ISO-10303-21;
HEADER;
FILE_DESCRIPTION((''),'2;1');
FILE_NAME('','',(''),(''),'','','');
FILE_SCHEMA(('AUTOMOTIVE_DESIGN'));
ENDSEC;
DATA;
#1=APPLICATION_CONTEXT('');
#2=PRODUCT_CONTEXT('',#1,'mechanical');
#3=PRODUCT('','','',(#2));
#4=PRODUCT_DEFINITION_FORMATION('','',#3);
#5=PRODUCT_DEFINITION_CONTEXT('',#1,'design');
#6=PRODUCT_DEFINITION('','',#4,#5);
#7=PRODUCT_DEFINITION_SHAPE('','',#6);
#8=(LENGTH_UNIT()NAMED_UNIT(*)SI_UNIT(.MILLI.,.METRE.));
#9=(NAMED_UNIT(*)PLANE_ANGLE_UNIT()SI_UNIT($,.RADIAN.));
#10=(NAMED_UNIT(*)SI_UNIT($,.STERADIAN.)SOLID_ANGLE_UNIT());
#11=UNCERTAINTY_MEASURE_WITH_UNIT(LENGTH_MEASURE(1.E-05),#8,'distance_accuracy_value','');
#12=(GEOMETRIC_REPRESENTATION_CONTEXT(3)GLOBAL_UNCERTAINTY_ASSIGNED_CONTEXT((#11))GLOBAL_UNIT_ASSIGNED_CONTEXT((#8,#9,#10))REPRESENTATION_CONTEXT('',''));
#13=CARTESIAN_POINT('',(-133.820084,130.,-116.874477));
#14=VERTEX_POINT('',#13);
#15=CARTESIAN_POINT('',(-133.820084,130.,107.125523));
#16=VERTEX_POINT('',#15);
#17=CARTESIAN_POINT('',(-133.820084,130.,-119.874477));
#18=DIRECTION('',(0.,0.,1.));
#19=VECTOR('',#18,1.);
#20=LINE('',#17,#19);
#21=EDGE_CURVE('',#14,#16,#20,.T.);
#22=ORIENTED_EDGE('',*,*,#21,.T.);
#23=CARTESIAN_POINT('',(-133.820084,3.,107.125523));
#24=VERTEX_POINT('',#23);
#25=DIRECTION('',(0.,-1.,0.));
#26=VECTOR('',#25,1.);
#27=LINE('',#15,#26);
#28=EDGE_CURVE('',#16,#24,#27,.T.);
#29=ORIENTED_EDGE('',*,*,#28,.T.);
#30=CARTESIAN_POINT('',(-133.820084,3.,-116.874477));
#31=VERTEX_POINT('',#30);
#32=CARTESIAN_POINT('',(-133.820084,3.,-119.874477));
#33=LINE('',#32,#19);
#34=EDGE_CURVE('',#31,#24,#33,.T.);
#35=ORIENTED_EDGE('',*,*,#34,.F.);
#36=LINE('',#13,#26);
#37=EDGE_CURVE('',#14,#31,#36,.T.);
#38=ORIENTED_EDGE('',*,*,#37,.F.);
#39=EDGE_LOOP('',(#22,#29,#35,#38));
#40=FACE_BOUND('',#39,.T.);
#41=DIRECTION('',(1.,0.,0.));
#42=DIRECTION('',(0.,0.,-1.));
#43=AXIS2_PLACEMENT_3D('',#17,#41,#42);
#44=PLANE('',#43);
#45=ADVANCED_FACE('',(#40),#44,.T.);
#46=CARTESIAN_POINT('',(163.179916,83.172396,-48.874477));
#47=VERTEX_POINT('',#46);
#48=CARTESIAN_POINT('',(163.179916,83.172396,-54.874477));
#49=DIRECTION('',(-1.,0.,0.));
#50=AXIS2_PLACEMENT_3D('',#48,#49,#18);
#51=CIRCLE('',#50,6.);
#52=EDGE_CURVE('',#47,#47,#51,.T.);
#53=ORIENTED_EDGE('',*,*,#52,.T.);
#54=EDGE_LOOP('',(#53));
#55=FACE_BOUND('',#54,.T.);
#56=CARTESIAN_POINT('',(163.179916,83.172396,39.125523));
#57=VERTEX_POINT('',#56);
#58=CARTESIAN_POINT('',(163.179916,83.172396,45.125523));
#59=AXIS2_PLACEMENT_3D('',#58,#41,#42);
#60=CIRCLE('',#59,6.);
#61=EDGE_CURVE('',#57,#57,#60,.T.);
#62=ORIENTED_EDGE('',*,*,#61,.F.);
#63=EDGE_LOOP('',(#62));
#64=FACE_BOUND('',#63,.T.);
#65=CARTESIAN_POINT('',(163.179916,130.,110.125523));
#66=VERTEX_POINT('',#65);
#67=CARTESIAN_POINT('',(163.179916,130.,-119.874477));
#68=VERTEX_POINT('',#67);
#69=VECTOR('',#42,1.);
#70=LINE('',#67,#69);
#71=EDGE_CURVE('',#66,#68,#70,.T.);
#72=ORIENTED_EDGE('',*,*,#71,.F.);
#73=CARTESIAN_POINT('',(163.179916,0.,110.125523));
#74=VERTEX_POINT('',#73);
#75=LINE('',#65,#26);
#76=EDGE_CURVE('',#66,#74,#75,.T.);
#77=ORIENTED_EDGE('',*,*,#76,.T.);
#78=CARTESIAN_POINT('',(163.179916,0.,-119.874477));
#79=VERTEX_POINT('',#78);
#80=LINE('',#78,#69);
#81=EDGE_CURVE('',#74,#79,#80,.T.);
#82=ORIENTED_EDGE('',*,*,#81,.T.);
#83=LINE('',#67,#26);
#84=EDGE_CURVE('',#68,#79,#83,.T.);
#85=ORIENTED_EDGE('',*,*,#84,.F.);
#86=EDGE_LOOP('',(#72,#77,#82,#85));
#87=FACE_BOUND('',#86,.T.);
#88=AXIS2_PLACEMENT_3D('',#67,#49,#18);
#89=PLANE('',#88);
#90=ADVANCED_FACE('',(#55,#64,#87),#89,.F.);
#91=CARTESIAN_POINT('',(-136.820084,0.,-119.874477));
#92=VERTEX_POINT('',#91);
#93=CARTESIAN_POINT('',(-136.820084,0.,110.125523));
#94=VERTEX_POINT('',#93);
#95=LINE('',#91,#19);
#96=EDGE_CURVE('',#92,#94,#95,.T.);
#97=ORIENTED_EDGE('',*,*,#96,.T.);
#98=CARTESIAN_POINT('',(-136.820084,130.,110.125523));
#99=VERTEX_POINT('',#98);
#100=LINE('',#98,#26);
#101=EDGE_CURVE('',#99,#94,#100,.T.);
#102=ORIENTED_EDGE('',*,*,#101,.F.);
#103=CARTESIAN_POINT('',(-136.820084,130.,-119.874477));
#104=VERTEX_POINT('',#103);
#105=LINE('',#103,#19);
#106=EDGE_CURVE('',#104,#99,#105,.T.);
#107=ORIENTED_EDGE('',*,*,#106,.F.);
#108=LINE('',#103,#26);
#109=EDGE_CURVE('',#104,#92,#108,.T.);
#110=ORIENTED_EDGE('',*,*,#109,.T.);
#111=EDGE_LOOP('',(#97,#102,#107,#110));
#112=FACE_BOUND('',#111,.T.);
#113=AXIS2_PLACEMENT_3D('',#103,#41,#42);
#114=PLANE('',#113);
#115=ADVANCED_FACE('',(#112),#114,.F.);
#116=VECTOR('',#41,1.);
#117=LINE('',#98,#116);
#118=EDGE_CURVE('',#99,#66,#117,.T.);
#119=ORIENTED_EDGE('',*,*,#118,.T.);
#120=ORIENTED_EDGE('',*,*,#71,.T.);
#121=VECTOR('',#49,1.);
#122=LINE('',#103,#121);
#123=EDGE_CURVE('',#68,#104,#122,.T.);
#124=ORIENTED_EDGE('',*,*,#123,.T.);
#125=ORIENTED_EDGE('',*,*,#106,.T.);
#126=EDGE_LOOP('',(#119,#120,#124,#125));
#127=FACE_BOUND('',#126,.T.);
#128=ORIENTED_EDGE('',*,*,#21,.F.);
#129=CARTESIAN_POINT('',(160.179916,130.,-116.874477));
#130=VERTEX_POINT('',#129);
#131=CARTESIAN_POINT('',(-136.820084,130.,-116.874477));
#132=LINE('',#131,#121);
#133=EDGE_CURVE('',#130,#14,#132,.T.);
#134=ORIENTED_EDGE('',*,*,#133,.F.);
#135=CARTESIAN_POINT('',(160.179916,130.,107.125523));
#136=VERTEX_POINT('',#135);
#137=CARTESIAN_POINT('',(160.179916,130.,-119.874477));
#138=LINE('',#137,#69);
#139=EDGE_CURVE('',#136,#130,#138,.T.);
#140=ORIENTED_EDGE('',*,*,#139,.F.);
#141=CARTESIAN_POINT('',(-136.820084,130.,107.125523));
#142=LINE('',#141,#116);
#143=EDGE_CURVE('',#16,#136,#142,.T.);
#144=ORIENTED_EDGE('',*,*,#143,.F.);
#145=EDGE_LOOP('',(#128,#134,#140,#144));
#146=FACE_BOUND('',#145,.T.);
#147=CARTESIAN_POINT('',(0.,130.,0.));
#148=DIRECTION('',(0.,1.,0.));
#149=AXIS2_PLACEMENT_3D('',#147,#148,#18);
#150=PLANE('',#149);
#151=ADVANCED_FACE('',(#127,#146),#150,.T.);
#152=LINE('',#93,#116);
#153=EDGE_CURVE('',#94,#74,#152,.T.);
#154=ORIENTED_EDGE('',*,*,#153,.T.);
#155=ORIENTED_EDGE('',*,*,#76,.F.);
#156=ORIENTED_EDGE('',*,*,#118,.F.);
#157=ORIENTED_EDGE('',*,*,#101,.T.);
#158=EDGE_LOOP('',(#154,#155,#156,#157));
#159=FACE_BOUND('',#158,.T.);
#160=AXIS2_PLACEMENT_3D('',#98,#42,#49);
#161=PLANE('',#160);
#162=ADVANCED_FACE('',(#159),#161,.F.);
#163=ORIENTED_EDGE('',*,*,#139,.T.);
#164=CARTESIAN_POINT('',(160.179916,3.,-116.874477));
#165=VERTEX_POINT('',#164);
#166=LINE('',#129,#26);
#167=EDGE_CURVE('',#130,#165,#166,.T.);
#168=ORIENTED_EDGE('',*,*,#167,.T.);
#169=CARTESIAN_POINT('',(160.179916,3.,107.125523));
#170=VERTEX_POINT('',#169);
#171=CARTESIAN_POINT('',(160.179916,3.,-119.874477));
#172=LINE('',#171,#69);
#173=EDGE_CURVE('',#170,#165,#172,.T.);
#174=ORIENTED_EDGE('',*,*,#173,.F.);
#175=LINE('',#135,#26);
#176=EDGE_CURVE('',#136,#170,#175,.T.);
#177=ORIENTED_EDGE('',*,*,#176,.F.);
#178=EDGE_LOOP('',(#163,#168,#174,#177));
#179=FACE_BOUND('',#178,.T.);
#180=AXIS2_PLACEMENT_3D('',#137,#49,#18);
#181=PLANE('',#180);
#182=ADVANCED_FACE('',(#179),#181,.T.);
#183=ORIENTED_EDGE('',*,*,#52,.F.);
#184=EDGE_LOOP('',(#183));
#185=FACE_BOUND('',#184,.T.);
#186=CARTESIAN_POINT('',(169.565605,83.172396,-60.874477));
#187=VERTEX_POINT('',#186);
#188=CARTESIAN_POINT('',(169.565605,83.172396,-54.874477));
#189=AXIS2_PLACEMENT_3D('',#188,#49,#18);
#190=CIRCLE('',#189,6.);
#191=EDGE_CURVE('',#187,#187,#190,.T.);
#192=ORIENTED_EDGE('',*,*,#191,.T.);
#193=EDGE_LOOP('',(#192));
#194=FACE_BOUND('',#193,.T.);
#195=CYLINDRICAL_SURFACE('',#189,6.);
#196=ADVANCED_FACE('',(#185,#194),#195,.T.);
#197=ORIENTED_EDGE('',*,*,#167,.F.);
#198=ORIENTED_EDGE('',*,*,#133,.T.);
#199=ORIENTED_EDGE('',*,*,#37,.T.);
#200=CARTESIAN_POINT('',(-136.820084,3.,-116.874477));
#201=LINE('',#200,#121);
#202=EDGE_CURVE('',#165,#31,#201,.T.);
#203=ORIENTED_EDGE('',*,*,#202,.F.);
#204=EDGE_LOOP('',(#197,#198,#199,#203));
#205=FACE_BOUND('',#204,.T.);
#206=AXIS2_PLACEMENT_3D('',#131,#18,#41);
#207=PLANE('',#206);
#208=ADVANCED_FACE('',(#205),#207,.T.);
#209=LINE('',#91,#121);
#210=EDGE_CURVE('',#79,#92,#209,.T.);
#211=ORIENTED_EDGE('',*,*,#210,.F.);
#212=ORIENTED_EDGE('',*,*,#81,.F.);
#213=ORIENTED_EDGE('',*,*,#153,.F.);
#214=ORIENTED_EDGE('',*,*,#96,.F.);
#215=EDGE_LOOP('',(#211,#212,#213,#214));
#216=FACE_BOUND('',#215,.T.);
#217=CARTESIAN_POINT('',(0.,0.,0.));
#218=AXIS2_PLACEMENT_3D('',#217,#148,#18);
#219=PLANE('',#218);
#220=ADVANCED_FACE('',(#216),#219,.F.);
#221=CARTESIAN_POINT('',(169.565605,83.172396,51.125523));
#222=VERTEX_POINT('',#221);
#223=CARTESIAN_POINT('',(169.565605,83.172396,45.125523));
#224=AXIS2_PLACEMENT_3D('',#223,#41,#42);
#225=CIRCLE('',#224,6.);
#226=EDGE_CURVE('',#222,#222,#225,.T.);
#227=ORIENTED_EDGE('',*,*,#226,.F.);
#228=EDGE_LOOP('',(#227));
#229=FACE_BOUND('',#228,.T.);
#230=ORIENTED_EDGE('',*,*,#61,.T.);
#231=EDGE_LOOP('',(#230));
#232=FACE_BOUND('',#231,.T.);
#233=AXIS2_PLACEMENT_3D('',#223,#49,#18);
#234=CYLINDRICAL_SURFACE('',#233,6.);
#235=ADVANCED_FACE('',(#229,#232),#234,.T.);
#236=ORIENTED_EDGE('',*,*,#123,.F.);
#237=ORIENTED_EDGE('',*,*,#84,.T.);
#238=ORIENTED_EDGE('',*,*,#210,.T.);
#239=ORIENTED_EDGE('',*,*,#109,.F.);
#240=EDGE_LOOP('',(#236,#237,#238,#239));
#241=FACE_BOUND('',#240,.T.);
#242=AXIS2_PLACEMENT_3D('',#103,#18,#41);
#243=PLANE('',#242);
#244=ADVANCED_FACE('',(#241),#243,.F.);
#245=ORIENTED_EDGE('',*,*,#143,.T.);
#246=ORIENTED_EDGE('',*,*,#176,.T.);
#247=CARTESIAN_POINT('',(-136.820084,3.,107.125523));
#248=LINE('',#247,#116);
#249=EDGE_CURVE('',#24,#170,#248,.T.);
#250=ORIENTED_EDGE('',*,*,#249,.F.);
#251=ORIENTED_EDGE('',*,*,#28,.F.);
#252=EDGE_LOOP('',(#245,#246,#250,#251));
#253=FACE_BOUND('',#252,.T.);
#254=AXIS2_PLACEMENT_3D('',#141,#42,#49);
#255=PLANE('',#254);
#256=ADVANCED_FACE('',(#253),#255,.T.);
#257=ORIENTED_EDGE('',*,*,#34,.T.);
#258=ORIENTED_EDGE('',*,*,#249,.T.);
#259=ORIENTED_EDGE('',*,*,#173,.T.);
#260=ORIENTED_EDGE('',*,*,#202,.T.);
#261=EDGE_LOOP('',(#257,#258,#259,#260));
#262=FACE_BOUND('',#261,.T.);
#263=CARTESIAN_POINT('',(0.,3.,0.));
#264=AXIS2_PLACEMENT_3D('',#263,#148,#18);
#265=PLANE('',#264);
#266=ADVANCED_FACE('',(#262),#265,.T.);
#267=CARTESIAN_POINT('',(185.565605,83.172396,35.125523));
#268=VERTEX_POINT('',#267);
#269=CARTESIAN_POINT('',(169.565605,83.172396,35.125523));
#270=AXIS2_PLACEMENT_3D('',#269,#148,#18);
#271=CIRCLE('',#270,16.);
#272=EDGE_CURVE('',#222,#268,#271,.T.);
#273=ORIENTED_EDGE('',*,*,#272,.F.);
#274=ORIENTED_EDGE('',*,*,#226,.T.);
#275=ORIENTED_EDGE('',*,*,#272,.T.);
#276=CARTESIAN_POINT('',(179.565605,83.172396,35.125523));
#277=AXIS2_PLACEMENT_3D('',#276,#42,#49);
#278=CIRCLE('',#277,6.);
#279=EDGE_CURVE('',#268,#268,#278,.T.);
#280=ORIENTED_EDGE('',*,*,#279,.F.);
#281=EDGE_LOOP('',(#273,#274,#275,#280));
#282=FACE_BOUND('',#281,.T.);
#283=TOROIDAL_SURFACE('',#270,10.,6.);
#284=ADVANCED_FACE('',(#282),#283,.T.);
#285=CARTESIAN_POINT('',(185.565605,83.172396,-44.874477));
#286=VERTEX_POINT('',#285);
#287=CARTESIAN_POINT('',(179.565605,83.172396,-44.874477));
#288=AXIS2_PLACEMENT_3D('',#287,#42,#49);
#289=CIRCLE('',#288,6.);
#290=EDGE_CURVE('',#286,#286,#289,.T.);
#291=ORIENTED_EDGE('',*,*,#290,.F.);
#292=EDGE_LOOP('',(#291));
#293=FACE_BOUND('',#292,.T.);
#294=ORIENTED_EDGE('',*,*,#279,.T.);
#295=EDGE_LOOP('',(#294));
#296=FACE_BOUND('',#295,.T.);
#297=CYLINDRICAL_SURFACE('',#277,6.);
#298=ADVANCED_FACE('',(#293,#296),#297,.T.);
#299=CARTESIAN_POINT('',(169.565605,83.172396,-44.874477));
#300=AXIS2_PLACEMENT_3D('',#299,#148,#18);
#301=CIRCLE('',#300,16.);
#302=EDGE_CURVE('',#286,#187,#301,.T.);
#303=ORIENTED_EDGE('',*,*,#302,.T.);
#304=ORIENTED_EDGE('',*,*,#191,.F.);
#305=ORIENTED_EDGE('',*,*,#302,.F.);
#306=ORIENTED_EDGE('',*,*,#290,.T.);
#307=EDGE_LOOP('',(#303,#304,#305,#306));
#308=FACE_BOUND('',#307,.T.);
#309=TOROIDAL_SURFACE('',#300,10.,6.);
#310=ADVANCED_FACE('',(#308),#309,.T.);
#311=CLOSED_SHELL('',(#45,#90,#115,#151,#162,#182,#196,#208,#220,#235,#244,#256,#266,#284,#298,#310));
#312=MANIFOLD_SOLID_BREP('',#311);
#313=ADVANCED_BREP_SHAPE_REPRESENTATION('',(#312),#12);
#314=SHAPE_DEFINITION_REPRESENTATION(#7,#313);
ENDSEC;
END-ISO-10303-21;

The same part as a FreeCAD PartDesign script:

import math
import FreeCAD as App
import Part
import Sketcher
Q = App.Units.Quantity


def faces_at(feature, points):
    """Names of the faces that lie closest to the given points."""
    faces = feature.Shape.Faces
    near = lambda p: min(range(len(faces)), key=lambda i: faces[i].distToShape(Part.Vertex(*p))[0])
    return sorted({f"Face{near(p) + 1}" for p in points})

doc = App.newDocument("Part")
body = doc.addObject("PartDesign::Body", "Body")

sketch1 = doc.addObject("Sketcher::SketchObject", "Sketch")
body.addObject(sketch1)
sketch1.AttachmentSupport = (doc.XZ_Plane, [""])
sketch1.MapMode = "FlatFace"
sketch1.addGeometry(Part.LineSegment(App.Vector(-136.820084, -119.874477, 0), App.Vector(-136.820084, 110.125523, 0)), False)
sketch1.addGeometry(Part.LineSegment(App.Vector(-136.820084, 110.125523, 0), App.Vector(163.179916, 110.125523, 0)), False)
sketch1.addGeometry(Part.LineSegment(App.Vector(163.179916, 110.125523, 0), App.Vector(163.179916, -119.874477, 0)), False)
sketch1.addGeometry(Part.LineSegment(App.Vector(163.179916, -119.874477, 0), App.Vector(-136.820084, -119.874477, 0)), False)
sketch1.addConstraint(Sketcher.Constraint("Coincident", 0, 2, 1, 1))
sketch1.addConstraint(Sketcher.Constraint("Coincident", 1, 2, 2, 1))
sketch1.addConstraint(Sketcher.Constraint("Coincident", 2, 2, 3, 1))
sketch1.addConstraint(Sketcher.Constraint("Coincident", 3, 2, 0, 1))
sketch1.addConstraint(Sketcher.Constraint("Vertical", 0))
sketch1.addConstraint(Sketcher.Constraint("Horizontal", 1))
sketch1.addConstraint(Sketcher.Constraint("Vertical", 2))
sketch1.addConstraint(Sketcher.Constraint("Horizontal", 3))
sketch1.addConstraint(Sketcher.Constraint("DistanceX", 1, 1, 1, 2, Q("300 mm")))
sketch1.addConstraint(Sketcher.Constraint("DistanceY", 0, 1, 0, 2, Q("230 mm")))
sketch1.addConstraint(Sketcher.Constraint("DistanceX", 0, 2, -1, 1, Q("136.820084 mm")))
sketch1.addConstraint(Sketcher.Constraint("DistanceY", -1, 1, 0, 2, Q("110.125523 mm")))
pad1 = doc.addObject("PartDesign::Pad", "Pad")
body.addObject(pad1)
pad1.Profile = sketch1
pad1.Length = 130
pad1.Reversed = True
doc.recompute()

thickness = doc.addObject("PartDesign::Thickness", "Thickness")
body.addObject(thickness)
thickness.Base = (pad1, faces_at(pad1, [(13.18, 130, -4.874)]))
thickness.Value = 3
thickness.Reversed = True
thickness.Join = "Intersection"

sketch2 = doc.addObject("Sketcher::SketchObject", "Sketch001")
body.addObject(sketch2)
sketch2.AttachmentSupport = (doc.YZ_Plane, [""])
sketch2.MapMode = "FlatFace"
sketch2.AttachmentOffset = App.Placement(App.Vector(0, 0, 163.179916), App.Rotation())
sketch2.addGeometry(Part.Circle(App.Vector(83.172396, 45.125523, 0), App.Vector(0, 0, 1), 6), False)
sketch2.addConstraint(Sketcher.Constraint("Diameter", 0, Q("12 mm")))
sketch2.addConstraint(Sketcher.Constraint("DistanceX", -1, 1, 0, 3, Q("83.172396 mm")))
sketch2.addConstraint(Sketcher.Constraint("DistanceY", -1, 1, 0, 3, Q("45.125523 mm")))

sketch3 = doc.addObject("Sketcher::SketchObject", "Sketch002")
body.addObject(sketch3)
sketch3.AttachmentSupport = (doc.XZ_Plane, [""])
sketch3.MapMode = "FlatFace"
sketch3.AttachmentOffset = App.Placement(App.Vector(0, 0, -83.172396), App.Rotation())
sketch3.addGeometry(Part.LineSegment(App.Vector(163.179916, 45.125523, 0), App.Vector(169.565605, 45.125523, 0)), False)
sketch3.addGeometry(Part.ArcOfCircle(Part.Circle(App.Vector(169.565605, 35.125523, 0), App.Vector(0, 0, 1), 10), math.radians(0), math.radians(90)), False)
sketch3.addGeometry(Part.LineSegment(App.Vector(179.565605, 35.125523, 0), App.Vector(179.565605, -44.874477, 0)), False)
sketch3.addGeometry(Part.ArcOfCircle(Part.Circle(App.Vector(169.565605, -44.874477, 0), App.Vector(0, 0, 1), 10), math.radians(-90), math.radians(0)), False)
sketch3.addGeometry(Part.LineSegment(App.Vector(169.565605, -54.874477, 0), App.Vector(163.179916, -54.874477, 0)), False)
sketch3.addConstraint(Sketcher.Constraint("Tangent", 0, 2, 1, 2))
sketch3.addConstraint(Sketcher.Constraint("Tangent", 1, 1, 2, 1))
sketch3.addConstraint(Sketcher.Constraint("Tangent", 2, 2, 3, 2))
sketch3.addConstraint(Sketcher.Constraint("Tangent", 3, 1, 4, 1))
sketch3.addConstraint(Sketcher.Constraint("Horizontal", 0))
sketch3.addConstraint(Sketcher.Constraint("Vertical", 2))
sketch3.addConstraint(Sketcher.Constraint("Horizontal", 4))
sketch3.addConstraint(Sketcher.Constraint("Equal", 1, 3))
sketch3.addConstraint(Sketcher.Constraint("Vertical", 0, 1, 4, 2))
sketch3.addConstraint(Sketcher.Constraint("Radius", 1, Q("10 mm")))
sketch3.addConstraint(Sketcher.Constraint("DistanceY", 2, 2, 2, 1, Q("80 mm")))
sketch3.addConstraint(Sketcher.Constraint("DistanceX", 0, 1, 0, 2, Q("6.385689 mm")))
sketch3.addConstraint(Sketcher.Constraint("DistanceX", -1, 1, 1, 3, Q("169.565605 mm")))
sketch3.addConstraint(Sketcher.Constraint("DistanceY", -1, 1, 1, 3, Q("35.125523 mm")))
doc.recompute()

additivepipe = doc.addObject("PartDesign::AdditivePipe", "AdditivePipe")
body.addObject(additivepipe)
additivepipe.Profile = sketch2
additivepipe.Spine = (sketch3, ["Edge1", "Edge2", "Edge3", "Edge4", "Edge5"])

doc.recompute()
